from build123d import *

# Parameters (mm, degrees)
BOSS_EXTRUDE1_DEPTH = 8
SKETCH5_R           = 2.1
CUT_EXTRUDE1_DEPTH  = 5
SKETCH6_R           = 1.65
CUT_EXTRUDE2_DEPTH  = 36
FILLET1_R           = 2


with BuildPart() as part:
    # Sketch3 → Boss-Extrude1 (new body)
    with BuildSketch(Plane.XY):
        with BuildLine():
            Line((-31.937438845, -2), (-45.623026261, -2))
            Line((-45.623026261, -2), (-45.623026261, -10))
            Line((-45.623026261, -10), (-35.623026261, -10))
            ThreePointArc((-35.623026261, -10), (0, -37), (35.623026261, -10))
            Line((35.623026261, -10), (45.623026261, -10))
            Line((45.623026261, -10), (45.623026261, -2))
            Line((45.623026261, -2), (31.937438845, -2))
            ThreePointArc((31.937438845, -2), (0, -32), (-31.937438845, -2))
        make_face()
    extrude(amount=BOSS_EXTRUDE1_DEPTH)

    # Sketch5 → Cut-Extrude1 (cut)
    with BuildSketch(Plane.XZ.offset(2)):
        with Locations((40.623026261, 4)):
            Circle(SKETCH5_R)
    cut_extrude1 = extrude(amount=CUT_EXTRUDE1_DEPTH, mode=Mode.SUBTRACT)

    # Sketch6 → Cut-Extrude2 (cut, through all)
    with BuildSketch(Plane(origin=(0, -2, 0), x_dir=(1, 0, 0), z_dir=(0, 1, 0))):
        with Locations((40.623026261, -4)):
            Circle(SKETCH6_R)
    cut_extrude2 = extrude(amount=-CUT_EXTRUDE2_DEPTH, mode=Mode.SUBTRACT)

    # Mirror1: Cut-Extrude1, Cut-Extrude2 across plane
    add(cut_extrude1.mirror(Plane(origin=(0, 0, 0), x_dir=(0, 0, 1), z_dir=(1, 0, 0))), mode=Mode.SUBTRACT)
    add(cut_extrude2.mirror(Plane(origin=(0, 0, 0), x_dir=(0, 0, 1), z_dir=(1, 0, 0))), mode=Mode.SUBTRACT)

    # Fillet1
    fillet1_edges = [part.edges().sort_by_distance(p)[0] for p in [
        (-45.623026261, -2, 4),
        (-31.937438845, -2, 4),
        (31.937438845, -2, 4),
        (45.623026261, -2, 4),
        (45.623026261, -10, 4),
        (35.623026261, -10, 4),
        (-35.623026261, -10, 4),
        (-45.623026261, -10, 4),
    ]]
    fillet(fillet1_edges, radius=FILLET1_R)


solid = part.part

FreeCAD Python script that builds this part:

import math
import FreeCAD as App
import Part
import Sketcher
from FreeCAD import Vector


def edges_at(feature, points):
    """Names of the edges that pass closest to the given points."""
    edges = feature.Shape.Edges
    near = lambda p: min(range(len(edges)), key=lambda i: edges[i].distToShape(Part.Vertex(*p))[0])
    return sorted({f"Edge{near(p) + 1}" for p in points})

doc = App.newDocument("Part")
body = doc.addObject("PartDesign::Body", "Body")

# Sketch on XY plane
sketch1 = body.newObject("Sketcher::SketchObject", "Sketch")
sketch1.AttachmentSupport = (doc.getObject("XY_Plane"), [""])
sketch1.MapMode = "FlatFace"
sketch1.addGeometry(Part.LineSegment(Vector(-32, -2, 0), Vector(-46, -2, 0)), False)
sketch1.addGeometry(Part.LineSegment(Vector(-46, -2, 0), Vector(-46, -10, 0)), False)
sketch1.addGeometry(Part.LineSegment(Vector(-46, -10, 0), Vector(-36, -10, 0)), False)
sketch1.addGeometry(Part.ArcOfCircle(Part.Circle(Vector(0, 0, 0), Vector(0, 0, 1), 37), math.radians(-164), math.radians(-16)), False)
sketch1.addGeometry(Part.LineSegment(Vector(36, -10, 0), Vector(46, -10, 0)), False)
sketch1.addGeometry(Part.LineSegment(Vector(46, -10, 0), Vector(46, -2, 0)), False)
sketch1.addGeometry(Part.LineSegment(Vector(46, -2, 0), Vector(32, -2, 0)), False)
sketch1.addGeometry(Part.ArcOfCircle(Part.Circle(Vector(0, 0, 0), Vector(0, 0, 1), 32), math.radians(-176), math.radians(-4)), False)
sketch1.addConstraint(Sketcher.Constraint("Coincident", 0, 2, 1, 1))
sketch1.addConstraint(Sketcher.Constraint("Coincident", 1, 2, 2, 1))
sketch1.addConstraint(Sketcher.Constraint("Coincident", 2, 2, 3, 1))
sketch1.addConstraint(Sketcher.Constraint("Coincident", 3, 2, 4, 1))
sketch1.addConstraint(Sketcher.Constraint("Coincident", 4, 2, 5, 1))
sketch1.addConstraint(Sketcher.Constraint("Coincident", 5, 2, 6, 1))
sketch1.addConstraint(Sketcher.Constraint("Coincident", 6, 2, 7, 2))
sketch1.addConstraint(Sketcher.Constraint("Coincident", 7, 1, 0, 1))
sketch1.addConstraint(Sketcher.Constraint("Horizontal", 0))
sketch1.addConstraint(Sketcher.Constraint("Vertical", 1))
sketch1.addConstraint(Sketcher.Constraint("Horizontal", 2))
sketch1.addConstraint(Sketcher.Constraint("Horizontal", 4))
sketch1.addConstraint(Sketcher.Constraint("Vertical", 5))
sketch1.addConstraint(Sketcher.Constraint("Horizontal", 6))
sketch1.addConstraint(Sketcher.Constraint("Coincident", 3, 3, -1, 1))
sketch1.addConstraint(Sketcher.Constraint("Coincident", 7, 3, -1, 1))
sketch1.addConstraint(Sketcher.Constraint("Symmetric", 1, 2, 4, 2, -2))
sketch1.addConstraint(Sketcher.Constraint("Horizontal", 0, 2, 5, 2))
sketch1.addConstraint(Sketcher.Constraint("Radius", 3, 37.0))
sketch1.addConstraint(Sketcher.Constraint("Radius", 7, 32.0))
sketch1.addConstraint(Sketcher.Constraint("DistanceX", 2, 1, 2, 2, 10.0))
sketch1.addConstraint(Sketcher.Constraint("DistanceY", 1, 2, 1, 1, 8.0))
sketch1.addConstraint(Sketcher.Constraint("DistanceY", 0, 2, -1, 1, 2.0))
pad1 = body.newObject("PartDesign::Pad", "Pad")
pad1.Profile = sketch1
pad1.Length = 8

# Sketch on XZ plane
sketch2 = body.newObject("Sketcher::SketchObject", "Sketch001")
sketch2.AttachmentSupport = (doc.getObject("XZ_Plane"), [""])
sketch2.MapMode = "FlatFace"
sketch2.AttachmentOffset = App.Placement(Vector(0, 0, 2), App.Rotation())
sketch2.addGeometry(Part.Circle(Vector(40.6, 4, 0), Vector(0, 0, 1), 2.1), False)
sketch2.addConstraint(Sketcher.Constraint("Diameter", 0, 4.2))
sketch2.addConstraint(Sketcher.Constraint("DistanceY", -1, 1, 0, 3, 4.0))
sketch2.addConstraint(Sketcher.Constraint("DistanceX", -1, 1, 0, 3, 40.623026))
pocket1 = body.newObject("PartDesign::Pocket", "Pocket")
pocket1.Profile = sketch2
pocket1.Length = 5
pocket1.Reversed = True

# Sketch on XZ plane
sketch3 = body.newObject("Sketcher::SketchObject", "Sketch002")
sketch3.AttachmentSupport = (doc.getObject("XZ_Plane"), [""])
sketch3.MapMode = "FlatFace"
sketch3.AttachmentOffset = App.Placement(Vector(0, 0, 2), App.Rotation())
sketch3.addGeometry(Part.Circle(Vector(40.6, 4, 0), Vector(0, 0, 1), 1.6), False)
sketch3.addConstraint(Sketcher.Constraint("Diameter", 0, 3.3))
sketch3.addConstraint(Sketcher.Constraint("DistanceY", -1, 1, 0, 3, 4.0))
sketch3.addConstraint(Sketcher.Constraint("DistanceX", -1, 1, 0, 3, 40.623026))
pocket2 = body.newObject("PartDesign::Pocket", "Pocket001")
pocket2.Profile = sketch3
pocket2.Type = "ThroughAll"
pocket2.Reversed = True
doc.recompute()

mirrored = body.newObject("PartDesign::Mirrored", "Mirrored")
mirrored.Originals = [pocket1, pocket2]
mirrored.MirrorPlane = (doc.getObject("YZ_Plane"), [""])
body.Tip = mirrored
doc.recompute()

fillet = body.newObject("PartDesign::Fillet", "Fillet")
fillet.Base = (mirrored, edges_at(mirrored, [
    (-45.623, -2, 4),
    (-31.937, -2, 4),
    (31.937, -2, 4),
    (45.623, -2, 4),
    (45.623, -10, 4),
    (35.623, -10, 4),
    (-35.623, -10, 4),
    (-45.623, -10, 4),
]))
fillet.Radius = 2

doc.recompute()
